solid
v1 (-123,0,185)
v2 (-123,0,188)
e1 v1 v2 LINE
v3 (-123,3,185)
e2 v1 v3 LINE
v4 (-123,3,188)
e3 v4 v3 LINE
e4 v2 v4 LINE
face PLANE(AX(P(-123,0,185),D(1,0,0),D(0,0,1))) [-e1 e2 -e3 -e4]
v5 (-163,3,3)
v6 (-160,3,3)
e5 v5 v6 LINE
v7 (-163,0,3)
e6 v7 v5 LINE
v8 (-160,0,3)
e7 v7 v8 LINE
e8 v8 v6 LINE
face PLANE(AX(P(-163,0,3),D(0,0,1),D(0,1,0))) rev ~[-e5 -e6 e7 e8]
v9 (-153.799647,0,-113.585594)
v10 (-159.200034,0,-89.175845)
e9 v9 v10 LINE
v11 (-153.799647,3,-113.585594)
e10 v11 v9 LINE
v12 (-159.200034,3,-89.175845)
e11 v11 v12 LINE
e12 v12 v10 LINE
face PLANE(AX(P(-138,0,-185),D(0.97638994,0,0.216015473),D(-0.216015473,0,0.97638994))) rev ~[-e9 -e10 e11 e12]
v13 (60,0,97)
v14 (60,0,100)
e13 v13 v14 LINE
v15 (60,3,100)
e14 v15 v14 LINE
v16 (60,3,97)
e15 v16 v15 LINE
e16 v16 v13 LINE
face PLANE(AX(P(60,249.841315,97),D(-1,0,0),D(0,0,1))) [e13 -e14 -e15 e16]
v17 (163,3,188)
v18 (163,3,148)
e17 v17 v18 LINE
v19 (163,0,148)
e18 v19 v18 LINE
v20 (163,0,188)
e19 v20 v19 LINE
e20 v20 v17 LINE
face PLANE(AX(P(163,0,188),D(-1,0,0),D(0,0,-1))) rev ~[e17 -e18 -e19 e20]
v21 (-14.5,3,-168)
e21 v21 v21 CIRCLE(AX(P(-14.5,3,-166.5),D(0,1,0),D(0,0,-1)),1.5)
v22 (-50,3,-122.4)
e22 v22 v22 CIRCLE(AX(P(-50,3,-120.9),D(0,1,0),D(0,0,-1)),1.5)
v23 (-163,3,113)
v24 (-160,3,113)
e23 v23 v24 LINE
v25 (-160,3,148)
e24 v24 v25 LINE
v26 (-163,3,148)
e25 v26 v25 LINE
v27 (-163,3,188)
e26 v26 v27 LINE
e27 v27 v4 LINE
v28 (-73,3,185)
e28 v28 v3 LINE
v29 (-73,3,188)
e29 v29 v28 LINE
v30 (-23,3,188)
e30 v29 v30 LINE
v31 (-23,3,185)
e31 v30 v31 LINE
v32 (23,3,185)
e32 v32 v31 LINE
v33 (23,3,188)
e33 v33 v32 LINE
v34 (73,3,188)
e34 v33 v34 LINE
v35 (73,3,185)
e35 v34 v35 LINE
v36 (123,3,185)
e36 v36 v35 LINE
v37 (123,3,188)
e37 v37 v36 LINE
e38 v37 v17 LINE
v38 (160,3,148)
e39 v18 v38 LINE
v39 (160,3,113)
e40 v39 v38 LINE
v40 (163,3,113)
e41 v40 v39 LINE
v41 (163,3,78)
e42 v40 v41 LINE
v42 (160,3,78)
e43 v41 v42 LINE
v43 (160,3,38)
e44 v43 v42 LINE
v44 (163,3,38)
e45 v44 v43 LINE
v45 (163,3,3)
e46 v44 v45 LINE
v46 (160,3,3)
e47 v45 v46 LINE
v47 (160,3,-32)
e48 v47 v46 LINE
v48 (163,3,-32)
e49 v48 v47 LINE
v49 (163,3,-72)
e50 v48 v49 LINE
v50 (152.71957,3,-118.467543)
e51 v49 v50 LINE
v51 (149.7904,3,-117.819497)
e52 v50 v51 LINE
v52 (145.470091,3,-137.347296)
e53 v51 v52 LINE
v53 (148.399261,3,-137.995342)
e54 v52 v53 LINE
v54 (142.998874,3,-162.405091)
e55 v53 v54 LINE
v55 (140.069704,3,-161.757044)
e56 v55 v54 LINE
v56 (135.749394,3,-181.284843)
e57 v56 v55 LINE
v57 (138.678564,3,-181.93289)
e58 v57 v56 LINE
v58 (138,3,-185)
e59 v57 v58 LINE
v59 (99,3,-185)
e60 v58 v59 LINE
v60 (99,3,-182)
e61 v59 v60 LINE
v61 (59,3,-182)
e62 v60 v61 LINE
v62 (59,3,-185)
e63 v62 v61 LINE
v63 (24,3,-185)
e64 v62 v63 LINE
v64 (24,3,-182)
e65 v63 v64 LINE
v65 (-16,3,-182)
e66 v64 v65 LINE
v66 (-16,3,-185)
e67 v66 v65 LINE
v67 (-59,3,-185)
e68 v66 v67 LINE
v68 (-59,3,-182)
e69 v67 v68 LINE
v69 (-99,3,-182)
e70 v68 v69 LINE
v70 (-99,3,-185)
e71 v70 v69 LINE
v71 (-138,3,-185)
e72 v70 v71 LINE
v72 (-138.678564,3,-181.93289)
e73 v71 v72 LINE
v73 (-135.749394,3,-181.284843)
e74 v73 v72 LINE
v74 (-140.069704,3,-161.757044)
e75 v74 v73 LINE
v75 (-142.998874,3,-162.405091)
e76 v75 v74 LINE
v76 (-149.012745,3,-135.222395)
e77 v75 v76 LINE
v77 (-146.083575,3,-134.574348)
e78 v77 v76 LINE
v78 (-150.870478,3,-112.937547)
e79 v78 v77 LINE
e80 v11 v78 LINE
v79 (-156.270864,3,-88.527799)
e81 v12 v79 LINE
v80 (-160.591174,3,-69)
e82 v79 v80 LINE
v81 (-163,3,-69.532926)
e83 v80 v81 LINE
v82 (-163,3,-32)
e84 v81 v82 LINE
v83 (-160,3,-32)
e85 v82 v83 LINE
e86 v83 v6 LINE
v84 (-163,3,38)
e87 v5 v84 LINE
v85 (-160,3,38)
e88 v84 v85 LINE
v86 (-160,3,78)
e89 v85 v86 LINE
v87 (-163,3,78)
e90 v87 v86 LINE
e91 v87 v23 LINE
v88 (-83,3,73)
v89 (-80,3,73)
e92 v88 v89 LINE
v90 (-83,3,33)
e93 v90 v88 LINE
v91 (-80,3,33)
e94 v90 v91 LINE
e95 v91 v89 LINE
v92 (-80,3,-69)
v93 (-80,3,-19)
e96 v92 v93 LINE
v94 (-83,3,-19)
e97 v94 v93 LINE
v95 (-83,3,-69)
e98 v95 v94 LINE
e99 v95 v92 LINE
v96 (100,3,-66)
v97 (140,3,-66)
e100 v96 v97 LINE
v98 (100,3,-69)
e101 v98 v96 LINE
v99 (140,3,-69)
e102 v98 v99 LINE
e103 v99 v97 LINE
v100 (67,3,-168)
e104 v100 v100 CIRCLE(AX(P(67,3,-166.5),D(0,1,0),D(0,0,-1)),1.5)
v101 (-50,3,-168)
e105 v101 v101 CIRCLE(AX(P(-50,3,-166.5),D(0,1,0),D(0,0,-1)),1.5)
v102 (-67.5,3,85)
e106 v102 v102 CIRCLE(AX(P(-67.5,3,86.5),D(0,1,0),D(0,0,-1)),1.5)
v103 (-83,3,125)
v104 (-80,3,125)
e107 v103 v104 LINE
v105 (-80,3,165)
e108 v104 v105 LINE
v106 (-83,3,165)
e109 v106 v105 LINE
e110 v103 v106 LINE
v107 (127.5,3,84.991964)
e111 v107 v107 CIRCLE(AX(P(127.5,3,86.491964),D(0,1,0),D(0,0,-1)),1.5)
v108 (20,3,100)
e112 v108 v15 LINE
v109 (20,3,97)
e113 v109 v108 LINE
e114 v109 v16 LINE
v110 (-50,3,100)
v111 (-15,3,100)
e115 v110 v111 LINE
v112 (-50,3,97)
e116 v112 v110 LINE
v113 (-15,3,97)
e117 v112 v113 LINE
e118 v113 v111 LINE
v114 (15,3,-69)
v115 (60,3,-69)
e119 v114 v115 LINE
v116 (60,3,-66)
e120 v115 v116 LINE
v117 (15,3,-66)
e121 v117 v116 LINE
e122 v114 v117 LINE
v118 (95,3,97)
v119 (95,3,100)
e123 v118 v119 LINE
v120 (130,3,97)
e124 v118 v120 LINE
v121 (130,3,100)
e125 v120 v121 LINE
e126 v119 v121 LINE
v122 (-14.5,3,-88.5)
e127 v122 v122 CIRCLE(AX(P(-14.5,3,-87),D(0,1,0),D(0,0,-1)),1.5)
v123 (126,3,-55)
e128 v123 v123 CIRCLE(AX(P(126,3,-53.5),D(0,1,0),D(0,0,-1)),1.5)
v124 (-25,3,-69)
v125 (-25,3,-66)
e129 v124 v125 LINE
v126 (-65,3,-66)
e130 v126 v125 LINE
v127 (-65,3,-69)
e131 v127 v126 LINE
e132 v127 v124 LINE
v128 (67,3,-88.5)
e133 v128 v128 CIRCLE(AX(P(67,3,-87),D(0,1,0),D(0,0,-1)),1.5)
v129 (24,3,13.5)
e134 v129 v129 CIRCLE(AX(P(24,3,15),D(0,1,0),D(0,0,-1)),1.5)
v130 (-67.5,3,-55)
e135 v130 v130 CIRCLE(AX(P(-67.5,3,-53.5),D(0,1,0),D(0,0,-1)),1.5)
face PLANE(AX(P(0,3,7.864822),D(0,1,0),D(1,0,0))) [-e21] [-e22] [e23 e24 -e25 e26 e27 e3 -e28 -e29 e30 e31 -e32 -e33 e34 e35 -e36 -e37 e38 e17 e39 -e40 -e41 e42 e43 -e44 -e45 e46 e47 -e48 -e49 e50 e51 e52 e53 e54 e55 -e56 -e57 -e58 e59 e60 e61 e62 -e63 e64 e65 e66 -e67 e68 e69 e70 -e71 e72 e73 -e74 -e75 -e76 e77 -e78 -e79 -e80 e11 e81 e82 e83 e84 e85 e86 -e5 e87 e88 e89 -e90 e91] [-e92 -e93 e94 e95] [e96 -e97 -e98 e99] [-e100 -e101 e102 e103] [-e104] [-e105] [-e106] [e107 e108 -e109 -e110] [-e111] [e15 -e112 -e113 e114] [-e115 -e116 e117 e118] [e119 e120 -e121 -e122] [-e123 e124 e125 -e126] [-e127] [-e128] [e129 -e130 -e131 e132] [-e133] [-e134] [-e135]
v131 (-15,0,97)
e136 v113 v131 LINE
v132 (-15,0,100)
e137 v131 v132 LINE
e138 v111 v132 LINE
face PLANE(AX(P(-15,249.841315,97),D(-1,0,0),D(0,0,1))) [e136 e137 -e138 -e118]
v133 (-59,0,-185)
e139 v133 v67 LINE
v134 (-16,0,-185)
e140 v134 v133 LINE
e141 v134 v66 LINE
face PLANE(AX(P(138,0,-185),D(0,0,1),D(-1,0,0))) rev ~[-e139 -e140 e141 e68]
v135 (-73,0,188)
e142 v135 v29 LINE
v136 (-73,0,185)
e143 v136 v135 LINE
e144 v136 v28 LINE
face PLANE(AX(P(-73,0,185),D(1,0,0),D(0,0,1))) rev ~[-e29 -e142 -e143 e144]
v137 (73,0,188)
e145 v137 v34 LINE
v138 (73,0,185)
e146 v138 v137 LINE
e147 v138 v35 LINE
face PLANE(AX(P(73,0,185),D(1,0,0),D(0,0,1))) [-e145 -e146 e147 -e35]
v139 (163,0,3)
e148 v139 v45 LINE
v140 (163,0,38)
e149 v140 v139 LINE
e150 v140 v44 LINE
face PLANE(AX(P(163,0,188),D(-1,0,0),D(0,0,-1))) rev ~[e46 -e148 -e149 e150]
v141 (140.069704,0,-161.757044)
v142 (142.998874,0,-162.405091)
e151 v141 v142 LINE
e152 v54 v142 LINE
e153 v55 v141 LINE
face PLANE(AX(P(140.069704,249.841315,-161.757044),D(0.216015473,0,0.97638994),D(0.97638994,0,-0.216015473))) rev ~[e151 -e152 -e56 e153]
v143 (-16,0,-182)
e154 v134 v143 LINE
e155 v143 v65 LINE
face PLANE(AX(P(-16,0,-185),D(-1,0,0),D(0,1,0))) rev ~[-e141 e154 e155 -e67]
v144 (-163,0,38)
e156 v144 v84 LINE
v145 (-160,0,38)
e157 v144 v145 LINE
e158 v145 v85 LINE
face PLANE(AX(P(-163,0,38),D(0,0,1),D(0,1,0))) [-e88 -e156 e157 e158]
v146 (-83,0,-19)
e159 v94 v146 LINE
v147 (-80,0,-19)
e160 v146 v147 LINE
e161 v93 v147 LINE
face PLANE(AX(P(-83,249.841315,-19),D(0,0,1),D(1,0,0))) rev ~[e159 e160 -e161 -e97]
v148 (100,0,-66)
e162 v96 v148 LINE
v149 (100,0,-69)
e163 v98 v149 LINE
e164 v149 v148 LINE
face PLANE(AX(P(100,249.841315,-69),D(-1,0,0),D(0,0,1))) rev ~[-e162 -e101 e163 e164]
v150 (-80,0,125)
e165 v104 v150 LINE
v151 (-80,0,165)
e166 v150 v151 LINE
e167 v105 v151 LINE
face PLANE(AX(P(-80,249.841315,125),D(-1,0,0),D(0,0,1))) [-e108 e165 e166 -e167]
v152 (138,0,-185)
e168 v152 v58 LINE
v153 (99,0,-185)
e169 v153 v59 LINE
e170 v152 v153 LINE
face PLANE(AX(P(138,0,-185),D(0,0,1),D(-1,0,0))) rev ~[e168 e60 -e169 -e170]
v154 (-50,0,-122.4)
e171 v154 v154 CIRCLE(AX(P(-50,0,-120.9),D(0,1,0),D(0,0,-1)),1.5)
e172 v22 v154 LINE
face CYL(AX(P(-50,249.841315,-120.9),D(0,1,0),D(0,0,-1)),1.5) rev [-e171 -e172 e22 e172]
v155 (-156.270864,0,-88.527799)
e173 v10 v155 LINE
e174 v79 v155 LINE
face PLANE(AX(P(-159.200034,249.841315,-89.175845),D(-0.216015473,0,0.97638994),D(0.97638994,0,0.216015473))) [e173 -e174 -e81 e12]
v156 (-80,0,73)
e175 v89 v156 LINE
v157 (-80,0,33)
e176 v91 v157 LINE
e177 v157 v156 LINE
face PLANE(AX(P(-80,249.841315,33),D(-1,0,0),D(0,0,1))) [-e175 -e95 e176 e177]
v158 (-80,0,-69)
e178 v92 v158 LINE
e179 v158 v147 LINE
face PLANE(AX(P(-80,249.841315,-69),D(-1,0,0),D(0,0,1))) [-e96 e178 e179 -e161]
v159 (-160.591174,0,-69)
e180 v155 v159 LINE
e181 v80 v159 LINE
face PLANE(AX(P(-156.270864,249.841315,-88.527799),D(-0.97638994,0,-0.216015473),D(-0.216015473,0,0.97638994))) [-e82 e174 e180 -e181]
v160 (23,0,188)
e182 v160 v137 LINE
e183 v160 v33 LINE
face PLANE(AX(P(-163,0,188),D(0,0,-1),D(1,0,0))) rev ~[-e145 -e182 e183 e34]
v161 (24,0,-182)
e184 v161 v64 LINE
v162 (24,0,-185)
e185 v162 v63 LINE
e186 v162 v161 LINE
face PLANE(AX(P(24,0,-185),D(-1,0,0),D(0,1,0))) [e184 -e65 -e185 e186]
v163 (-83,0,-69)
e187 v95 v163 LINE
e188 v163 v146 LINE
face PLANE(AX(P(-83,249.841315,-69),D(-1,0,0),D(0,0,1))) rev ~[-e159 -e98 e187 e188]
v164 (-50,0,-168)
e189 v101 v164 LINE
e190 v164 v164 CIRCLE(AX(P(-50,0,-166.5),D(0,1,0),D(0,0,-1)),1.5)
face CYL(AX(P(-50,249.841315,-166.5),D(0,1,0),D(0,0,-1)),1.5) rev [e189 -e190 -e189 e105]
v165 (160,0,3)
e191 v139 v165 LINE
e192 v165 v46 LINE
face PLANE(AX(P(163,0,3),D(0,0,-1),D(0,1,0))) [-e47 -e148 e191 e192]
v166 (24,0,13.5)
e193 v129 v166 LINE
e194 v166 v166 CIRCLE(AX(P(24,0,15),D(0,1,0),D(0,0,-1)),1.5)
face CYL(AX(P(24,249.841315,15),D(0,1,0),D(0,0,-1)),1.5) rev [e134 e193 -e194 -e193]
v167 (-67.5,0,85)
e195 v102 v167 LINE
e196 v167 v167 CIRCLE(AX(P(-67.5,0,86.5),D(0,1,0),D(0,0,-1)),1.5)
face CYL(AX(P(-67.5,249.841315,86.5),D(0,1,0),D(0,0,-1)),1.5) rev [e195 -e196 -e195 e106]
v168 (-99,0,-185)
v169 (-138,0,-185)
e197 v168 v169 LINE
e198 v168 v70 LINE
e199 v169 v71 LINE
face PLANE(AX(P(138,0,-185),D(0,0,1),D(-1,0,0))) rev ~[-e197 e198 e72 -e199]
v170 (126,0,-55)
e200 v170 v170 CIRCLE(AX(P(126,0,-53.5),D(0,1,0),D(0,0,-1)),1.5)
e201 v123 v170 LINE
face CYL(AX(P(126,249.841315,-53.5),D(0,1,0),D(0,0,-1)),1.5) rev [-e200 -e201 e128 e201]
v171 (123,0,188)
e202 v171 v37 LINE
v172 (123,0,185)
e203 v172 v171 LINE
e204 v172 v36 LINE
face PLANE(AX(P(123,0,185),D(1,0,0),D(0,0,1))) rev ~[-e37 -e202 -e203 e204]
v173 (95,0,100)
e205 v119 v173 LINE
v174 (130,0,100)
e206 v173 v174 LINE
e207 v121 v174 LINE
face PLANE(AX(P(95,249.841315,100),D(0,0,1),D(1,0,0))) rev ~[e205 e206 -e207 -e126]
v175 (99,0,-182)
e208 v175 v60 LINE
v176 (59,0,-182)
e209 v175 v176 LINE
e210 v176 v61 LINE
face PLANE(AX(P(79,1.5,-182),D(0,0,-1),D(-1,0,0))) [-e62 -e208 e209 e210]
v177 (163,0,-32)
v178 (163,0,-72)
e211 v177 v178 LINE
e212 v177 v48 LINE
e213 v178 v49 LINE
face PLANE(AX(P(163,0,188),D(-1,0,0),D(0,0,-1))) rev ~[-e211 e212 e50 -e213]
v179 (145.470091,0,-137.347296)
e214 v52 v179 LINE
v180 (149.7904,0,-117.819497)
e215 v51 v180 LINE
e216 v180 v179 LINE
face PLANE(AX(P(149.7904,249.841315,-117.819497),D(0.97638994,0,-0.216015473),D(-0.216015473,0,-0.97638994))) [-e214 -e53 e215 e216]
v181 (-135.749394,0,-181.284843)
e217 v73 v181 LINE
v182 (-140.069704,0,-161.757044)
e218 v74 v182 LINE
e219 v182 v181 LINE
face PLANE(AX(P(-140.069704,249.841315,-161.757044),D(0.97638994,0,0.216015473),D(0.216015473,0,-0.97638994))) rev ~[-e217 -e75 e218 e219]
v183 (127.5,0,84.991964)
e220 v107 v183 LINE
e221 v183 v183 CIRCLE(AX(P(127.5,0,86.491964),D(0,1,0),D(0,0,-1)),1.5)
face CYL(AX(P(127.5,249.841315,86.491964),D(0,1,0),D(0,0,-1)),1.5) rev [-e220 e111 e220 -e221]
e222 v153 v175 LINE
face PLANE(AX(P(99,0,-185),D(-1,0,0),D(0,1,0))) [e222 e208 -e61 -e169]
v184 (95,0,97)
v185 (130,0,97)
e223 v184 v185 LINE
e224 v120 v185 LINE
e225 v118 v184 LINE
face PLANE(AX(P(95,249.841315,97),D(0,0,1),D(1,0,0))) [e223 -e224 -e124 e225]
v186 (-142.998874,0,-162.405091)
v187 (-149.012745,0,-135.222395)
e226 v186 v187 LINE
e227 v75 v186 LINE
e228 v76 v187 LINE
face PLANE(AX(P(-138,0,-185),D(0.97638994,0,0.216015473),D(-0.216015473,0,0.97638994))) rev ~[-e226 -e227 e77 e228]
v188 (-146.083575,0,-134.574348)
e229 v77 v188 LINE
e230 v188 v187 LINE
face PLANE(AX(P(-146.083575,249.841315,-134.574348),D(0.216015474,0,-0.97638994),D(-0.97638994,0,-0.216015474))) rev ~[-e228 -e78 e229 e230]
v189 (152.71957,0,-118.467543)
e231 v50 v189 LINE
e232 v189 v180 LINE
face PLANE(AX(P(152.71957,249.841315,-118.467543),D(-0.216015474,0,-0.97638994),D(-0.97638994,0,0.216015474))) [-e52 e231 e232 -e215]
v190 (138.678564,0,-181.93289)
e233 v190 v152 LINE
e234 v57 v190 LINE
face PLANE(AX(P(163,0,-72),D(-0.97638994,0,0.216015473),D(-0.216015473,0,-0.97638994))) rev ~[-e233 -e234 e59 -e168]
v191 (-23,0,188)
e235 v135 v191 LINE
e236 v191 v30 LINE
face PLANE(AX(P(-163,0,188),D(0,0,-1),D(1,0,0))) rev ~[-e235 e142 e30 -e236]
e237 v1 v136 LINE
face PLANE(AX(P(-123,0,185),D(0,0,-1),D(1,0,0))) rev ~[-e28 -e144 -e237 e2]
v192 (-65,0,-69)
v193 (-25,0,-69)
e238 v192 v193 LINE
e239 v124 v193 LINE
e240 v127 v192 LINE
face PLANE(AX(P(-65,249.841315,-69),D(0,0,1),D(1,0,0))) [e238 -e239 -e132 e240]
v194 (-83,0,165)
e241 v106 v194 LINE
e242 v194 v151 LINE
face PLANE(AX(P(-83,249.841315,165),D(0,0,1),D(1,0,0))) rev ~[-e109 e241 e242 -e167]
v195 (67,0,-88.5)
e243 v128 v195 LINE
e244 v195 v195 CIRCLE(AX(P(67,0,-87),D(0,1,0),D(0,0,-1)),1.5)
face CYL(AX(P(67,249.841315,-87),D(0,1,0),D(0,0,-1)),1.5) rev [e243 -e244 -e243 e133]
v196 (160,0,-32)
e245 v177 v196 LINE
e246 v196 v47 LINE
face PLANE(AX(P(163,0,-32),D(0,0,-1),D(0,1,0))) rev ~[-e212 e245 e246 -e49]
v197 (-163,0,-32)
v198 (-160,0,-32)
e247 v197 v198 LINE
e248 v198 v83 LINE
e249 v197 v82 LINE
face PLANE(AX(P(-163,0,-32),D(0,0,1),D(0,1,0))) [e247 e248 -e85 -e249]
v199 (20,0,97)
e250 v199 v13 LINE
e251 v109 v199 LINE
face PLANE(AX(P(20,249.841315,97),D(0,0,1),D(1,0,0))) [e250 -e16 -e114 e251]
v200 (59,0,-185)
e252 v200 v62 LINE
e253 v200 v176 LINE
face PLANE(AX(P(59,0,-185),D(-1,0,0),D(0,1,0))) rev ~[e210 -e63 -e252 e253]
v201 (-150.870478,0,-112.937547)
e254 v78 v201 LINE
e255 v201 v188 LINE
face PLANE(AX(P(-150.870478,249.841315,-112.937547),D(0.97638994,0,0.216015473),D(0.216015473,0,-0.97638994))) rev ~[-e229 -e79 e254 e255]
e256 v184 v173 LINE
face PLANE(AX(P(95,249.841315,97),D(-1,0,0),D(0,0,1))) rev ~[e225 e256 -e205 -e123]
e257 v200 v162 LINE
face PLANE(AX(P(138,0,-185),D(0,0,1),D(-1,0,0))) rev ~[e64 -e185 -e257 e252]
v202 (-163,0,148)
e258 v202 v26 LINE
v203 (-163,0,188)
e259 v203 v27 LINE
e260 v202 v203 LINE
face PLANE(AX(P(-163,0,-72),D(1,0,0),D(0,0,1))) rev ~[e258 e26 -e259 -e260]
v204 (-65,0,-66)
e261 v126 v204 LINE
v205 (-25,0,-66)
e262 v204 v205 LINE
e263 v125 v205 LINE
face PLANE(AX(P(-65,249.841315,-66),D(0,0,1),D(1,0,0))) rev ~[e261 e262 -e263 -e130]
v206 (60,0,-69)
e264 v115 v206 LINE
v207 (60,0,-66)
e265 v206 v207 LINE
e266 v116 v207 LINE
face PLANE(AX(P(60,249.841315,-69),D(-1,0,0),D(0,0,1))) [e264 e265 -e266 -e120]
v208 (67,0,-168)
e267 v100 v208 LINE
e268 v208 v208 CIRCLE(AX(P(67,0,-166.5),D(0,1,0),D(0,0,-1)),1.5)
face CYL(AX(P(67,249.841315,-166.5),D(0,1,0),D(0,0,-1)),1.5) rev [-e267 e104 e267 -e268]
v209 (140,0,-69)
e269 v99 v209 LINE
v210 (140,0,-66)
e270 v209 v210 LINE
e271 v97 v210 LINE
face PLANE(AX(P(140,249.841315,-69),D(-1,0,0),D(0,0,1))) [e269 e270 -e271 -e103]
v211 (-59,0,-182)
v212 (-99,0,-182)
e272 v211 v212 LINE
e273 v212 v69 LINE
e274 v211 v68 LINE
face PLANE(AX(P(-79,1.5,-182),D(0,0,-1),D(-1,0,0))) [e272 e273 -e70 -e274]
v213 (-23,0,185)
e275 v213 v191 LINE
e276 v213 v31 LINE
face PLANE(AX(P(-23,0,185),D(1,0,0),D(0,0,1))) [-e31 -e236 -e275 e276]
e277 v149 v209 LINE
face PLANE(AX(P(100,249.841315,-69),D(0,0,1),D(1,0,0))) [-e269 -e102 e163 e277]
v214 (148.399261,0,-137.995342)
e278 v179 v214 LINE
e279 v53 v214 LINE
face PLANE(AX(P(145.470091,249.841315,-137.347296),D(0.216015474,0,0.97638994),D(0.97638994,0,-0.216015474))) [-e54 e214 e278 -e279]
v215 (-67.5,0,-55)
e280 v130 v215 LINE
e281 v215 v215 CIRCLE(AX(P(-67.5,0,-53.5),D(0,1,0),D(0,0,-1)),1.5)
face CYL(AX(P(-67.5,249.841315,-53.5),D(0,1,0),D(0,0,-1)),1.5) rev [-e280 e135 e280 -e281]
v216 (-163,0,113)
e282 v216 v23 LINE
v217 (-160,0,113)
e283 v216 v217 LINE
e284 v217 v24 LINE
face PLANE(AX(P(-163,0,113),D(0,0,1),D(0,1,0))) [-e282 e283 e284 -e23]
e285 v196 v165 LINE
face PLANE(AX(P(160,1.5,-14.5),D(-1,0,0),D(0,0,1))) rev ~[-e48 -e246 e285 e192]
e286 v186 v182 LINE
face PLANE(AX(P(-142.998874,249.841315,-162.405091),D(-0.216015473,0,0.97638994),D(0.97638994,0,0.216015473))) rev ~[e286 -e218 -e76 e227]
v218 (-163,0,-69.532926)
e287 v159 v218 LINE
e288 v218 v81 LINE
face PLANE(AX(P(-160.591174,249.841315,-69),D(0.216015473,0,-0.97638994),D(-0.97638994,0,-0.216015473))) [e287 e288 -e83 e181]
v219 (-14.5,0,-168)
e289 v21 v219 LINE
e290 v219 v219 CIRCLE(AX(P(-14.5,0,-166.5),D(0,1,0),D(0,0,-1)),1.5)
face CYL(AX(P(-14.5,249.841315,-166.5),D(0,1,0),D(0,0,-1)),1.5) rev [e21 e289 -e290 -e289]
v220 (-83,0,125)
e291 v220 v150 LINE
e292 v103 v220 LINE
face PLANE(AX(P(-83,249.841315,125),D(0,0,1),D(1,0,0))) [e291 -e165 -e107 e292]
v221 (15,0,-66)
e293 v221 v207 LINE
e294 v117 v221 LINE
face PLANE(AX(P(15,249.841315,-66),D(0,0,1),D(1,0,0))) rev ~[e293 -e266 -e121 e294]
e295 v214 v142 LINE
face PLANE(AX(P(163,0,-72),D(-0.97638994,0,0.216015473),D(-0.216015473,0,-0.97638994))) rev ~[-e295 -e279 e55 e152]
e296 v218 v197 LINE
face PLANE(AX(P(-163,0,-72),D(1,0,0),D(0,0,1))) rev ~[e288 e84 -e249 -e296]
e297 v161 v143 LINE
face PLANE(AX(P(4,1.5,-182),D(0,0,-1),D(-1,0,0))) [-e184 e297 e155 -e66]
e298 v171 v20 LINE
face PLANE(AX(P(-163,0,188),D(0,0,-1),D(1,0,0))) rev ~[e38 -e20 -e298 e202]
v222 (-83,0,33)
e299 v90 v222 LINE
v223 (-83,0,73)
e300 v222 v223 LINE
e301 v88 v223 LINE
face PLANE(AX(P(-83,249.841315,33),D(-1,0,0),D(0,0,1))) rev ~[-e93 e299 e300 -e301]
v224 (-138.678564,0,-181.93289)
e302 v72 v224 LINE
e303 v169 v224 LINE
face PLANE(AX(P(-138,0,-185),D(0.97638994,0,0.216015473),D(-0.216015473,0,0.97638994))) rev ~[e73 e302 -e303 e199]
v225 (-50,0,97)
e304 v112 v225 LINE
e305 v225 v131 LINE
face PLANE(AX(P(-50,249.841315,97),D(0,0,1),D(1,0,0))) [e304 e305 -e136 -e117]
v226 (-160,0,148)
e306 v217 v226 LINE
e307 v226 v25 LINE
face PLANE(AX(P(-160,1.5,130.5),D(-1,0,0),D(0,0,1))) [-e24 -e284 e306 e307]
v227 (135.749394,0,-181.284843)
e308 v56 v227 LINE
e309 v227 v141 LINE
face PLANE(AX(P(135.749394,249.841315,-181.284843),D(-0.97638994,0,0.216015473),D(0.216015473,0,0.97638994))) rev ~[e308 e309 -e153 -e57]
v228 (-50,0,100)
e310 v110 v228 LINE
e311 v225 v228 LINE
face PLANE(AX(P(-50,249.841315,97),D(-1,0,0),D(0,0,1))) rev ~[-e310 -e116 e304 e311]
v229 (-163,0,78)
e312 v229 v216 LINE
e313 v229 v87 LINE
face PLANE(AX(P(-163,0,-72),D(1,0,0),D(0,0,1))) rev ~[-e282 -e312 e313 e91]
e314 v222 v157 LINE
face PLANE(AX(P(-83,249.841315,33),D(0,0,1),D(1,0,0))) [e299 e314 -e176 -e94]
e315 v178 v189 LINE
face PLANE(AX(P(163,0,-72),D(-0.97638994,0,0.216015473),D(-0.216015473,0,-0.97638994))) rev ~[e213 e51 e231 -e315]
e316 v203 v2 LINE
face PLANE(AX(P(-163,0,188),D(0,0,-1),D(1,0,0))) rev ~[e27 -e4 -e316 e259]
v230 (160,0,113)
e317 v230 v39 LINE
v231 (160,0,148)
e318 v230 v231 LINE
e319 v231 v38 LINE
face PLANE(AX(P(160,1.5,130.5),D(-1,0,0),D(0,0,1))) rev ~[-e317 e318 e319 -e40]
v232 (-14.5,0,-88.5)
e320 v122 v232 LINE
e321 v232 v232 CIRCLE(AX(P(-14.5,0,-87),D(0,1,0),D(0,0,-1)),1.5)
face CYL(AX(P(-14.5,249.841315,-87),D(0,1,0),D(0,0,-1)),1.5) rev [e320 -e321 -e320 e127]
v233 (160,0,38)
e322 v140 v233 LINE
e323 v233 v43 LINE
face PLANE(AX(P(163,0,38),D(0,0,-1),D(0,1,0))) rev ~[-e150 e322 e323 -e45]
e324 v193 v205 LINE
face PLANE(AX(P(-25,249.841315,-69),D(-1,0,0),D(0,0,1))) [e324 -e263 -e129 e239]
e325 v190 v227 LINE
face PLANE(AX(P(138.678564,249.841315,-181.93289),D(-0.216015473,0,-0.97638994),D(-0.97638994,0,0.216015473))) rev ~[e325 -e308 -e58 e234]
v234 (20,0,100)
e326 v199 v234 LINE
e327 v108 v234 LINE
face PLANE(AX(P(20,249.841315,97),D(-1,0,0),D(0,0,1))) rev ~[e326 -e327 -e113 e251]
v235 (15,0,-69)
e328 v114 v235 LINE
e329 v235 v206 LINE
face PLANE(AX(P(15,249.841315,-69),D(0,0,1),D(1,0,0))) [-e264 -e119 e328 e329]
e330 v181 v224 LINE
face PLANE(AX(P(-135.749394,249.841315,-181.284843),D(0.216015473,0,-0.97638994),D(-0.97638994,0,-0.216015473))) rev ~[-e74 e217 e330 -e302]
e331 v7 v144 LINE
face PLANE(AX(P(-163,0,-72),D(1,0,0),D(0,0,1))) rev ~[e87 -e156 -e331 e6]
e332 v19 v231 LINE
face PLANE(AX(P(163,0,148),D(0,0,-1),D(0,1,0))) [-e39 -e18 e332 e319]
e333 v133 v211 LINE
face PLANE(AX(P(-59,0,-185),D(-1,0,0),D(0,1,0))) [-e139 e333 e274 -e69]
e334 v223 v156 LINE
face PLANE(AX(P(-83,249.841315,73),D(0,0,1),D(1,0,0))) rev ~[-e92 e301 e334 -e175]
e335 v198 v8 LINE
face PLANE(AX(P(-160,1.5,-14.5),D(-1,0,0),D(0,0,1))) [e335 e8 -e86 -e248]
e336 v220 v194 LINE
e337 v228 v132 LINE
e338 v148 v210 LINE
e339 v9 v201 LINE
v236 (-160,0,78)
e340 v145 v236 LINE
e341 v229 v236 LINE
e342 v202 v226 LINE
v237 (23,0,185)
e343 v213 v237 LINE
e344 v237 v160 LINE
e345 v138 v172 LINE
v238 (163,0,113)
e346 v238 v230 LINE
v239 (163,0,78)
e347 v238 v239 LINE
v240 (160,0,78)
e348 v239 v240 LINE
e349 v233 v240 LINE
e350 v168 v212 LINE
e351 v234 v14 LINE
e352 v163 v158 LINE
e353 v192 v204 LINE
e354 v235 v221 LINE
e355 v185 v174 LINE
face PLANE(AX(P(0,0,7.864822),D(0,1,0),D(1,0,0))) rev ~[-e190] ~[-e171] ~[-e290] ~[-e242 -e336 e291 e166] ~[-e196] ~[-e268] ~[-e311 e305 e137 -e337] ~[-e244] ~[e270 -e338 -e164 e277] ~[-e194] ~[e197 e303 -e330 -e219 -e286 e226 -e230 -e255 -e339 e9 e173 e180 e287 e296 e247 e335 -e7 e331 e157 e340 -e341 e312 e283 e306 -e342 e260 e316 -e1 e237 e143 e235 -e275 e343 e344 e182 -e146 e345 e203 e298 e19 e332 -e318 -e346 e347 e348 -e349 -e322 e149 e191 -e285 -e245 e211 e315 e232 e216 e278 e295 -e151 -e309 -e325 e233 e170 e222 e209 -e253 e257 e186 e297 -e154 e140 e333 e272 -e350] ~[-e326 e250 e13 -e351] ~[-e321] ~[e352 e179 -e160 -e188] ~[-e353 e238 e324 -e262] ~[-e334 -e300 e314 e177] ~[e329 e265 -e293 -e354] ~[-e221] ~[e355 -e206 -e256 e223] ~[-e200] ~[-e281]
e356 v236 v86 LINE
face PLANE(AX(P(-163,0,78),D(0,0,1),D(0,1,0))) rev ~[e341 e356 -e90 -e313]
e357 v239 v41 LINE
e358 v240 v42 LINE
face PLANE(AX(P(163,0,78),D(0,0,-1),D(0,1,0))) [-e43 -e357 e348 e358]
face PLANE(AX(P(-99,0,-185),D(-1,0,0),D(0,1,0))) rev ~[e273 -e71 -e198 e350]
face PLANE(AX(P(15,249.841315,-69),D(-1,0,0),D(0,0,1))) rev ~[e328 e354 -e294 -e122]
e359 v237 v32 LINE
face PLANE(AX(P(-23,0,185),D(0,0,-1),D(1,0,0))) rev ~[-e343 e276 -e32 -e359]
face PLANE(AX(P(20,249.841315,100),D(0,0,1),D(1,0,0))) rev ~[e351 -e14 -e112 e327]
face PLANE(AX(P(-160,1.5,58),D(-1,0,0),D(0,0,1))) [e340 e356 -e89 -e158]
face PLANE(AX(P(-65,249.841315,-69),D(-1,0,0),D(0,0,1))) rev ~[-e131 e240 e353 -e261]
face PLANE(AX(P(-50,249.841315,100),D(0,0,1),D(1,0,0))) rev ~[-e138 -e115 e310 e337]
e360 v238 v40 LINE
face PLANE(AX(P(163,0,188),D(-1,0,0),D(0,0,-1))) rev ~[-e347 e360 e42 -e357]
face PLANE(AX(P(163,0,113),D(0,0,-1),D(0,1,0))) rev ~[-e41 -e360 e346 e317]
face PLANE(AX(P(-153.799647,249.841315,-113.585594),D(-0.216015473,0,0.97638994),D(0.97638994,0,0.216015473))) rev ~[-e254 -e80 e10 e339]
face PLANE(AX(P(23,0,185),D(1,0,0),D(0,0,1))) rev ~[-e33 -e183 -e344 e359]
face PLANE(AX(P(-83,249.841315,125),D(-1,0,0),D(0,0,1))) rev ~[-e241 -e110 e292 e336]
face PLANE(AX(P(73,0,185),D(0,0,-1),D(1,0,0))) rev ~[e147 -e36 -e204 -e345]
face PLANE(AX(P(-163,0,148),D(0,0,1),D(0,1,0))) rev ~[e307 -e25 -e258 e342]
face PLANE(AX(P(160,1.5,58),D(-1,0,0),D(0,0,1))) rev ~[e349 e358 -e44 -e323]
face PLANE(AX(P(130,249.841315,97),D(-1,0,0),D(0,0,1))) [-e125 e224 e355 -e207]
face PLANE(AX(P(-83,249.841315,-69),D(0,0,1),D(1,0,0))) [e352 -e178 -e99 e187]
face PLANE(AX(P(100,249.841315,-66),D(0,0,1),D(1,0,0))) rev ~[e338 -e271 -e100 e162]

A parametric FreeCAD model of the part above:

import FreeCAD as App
import Part
import Sketcher
from FreeCAD import Vector
Q = App.Units.Quantity


def add_polygon(sketch, points):
    """Adds a closed chain of lines whose ends are joined by coincident constraints."""
    first, n = sketch.GeometryCount, len(points)
    for a, b in zip(points, points[1:] + points[:1]):
        sketch.addGeometry(Part.LineSegment(App.Vector(*a, 0), App.Vector(*b, 0)), False)
    for i in range(n):
        sketch.addConstraint(Sketcher.Constraint("Coincident", first + i, 2, first + (i + 1) % n, 1))

doc = App.newDocument("Part")
body = doc.addObject("PartDesign::Body", "Body")

# Sketch on XZ plane
sketch1 = body.newObject("Sketcher::SketchObject", "Sketch")
sketch1.AttachmentSupport = (doc.getObject("XZ_Plane"), [""])
sketch1.MapMode = "FlatFace"
add_polygon(sketch1, [(138, -185), (-138, -185), (-163, -72), (-163, 188), (163, 188), (163, -72)])  # lines 0-5
sketch1.addConstraint(Sketcher.Constraint("Horizontal", 0))
sketch1.addConstraint(Sketcher.Constraint("Vertical", 2))
sketch1.addConstraint(Sketcher.Constraint("Horizontal", 3))
sketch1.addConstraint(Sketcher.Constraint("Vertical", 4))
sketch1.addConstraint(Sketcher.Constraint("Symmetric", 1, 2, 4, 2, -2))
sketch1.addConstraint(Sketcher.Constraint("Equal", 1, 5))
sketch1.addConstraint(Sketcher.Constraint("DistanceX", 0, 2, 0, 1, Q("276 mm")))
sketch1.addConstraint(Sketcher.Constraint("DistanceX", 3, 1, 3, 2, Q("326 mm")))
sketch1.addConstraint(Sketcher.Constraint("DistanceY", 2, 1, 2, 2, Q("260 mm")))
sketch1.addConstraint(Sketcher.Constraint("DistanceY", 0, 2, -1, 1, Q("185 mm")))
sketch1.addConstraint(Sketcher.Constraint("DistanceY", 1, 2, -1, 1, Q("72 mm")))
pad1 = body.newObject("PartDesign::Pad", "Pad")
pad1.Profile = sketch1
pad1.Length = 3
pad1.Reversed = True

# Sketch on XZ plane
sketch2 = body.newObject("Sketcher::SketchObject", "Sketch001")
sketch2.AttachmentSupport = (doc.getObject("XZ_Plane"), [""])
sketch2.MapMode = "FlatFace"
add_polygon(sketch2, [(73, 188), (73, 185), (123, 185), (123, 188)])  # lines 0-3
add_polygon(sketch2, [(-23, 188), (-23, 185), (23, 185), (23, 188)])  # lines 4-7
add_polygon(sketch2, [(-123, 188), (-123, 185), (-73, 185), (-73, 188)])  # lines 8-11
sketch2.addConstraint(Sketcher.Constraint("Vertical", 0))
sketch2.addConstraint(Sketcher.Constraint("Horizontal", 1))
sketch2.addConstraint(Sketcher.Constraint("Vertical", 2))
sketch2.addConstraint(Sketcher.Constraint("Horizontal", 3))
sketch2.addConstraint(Sketcher.Constraint("Vertical", 4))
sketch2.addConstraint(Sketcher.Constraint("Horizontal", 5))
sketch2.addConstraint(Sketcher.Constraint("Vertical", 6))
sketch2.addConstraint(Sketcher.Constraint("Horizontal", 7))
sketch2.addConstraint(Sketcher.Constraint("Vertical", 8))
sketch2.addConstraint(Sketcher.Constraint("Horizontal", 9))
sketch2.addConstraint(Sketcher.Constraint("Vertical", 10))
sketch2.addConstraint(Sketcher.Constraint("Horizontal", 11))
sketch2.addConstraint(Sketcher.Constraint("Symmetric", 1, 2, 8, 2, -2))
sketch2.addConstraint(Sketcher.Constraint("Symmetric", 3, 2, 10, 2, -2))
sketch2.addConstraint(Sketcher.Constraint("Horizontal", 1, 2, 4, 2))
sketch2.addConstraint(Sketcher.Constraint("Horizontal", 3, 2, 6, 2))
sketch2.addConstraint(Sketcher.Constraint("DistanceX", 1, 1, 1, 2, Q("50 mm")))
sketch2.addConstraint(Sketcher.Constraint("DistanceX", 5, 1, 5, 2, Q("46 mm")))
sketch2.addConstraint(Sketcher.Constraint("DistanceY", 0, 2, 0, 1, Q("3 mm")))
sketch2.addConstraint(Sketcher.Constraint("DistanceX", -1, 1, 0, 2, Q("73 mm")))
sketch2.addConstraint(Sketcher.Constraint("DistanceY", -1, 1, 0, 2, Q("185 mm")))
sketch2.addConstraint(Sketcher.Constraint("DistanceX", 4, 2, -1, 1, Q("23 mm")))
pocket1 = body.newObject("PartDesign::Pocket", "Pocket")
pocket1.Profile = sketch2
pocket1.Length = 4

# Sketch on YZ plane
sketch3 = body.newObject("Sketcher::SketchObject", "Sketch002")
sketch3.AttachmentSupport = (doc.getObject("YZ_Plane"), [""])
sketch3.MapMode = "FlatFace"
sketch3.AttachmentOffset = App.Placement(Vector(0, 0, -163), App.Rotation())
add_polygon(sketch3, [(3, 113), (0, 113), (0, 148), (3, 148)])  # lines 0-3
add_polygon(sketch3, [(3, -32), (0, -32), (0, 3), (3, 3)])  # lines 4-7
add_polygon(sketch3, [(3, 38), (0, 38), (0, 78), (3, 78)])  # lines 8-11
sketch3.addConstraint(Sketcher.Constraint("Horizontal", 0))
sketch3.addConstraint(Sketcher.Constraint("Vertical", 1))
sketch3.addConstraint(Sketcher.Constraint("Horizontal", 2))
sketch3.addConstraint(Sketcher.Constraint("Vertical", 3))
sketch3.addConstraint(Sketcher.Constraint("Horizontal", 4))
sketch3.addConstraint(Sketcher.Constraint("Vertical", 5))
sketch3.addConstraint(Sketcher.Constraint("Horizontal", 6))
sketch3.addConstraint(Sketcher.Constraint("Vertical", 7))
sketch3.addConstraint(Sketcher.Constraint("Horizontal", 8))
sketch3.addConstraint(Sketcher.Constraint("Vertical", 9))
sketch3.addConstraint(Sketcher.Constraint("Horizontal", 10))
sketch3.addConstraint(Sketcher.Constraint("Vertical", 11))
sketch3.addConstraint(Sketcher.Constraint("PointOnObject", 0, 2, -2))
sketch3.addConstraint(Sketcher.Constraint("PointOnObject", 4, 2, -2))
sketch3.addConstraint(Sketcher.Constraint("PointOnObject", 8, 2, -2))
sketch3.addConstraint(Sketcher.Constraint("Vertical", 3, 2, 6, 2))
sketch3.addConstraint(Sketcher.Constraint("Vertical", 7, 2, 10, 2))
sketch3.addConstraint(Sketcher.Constraint("Equal", 3, 5))
sketch3.addConstraint(Sketcher.Constraint("DistanceX", 0, 2, 0, 1, Q("3 mm")))
sketch3.addConstraint(Sketcher.Constraint("DistanceY", 1, 1, 1, 2, Q("35 mm")))
sketch3.addConstraint(Sketcher.Constraint("DistanceY", 9, 1, 9, 2, Q("40 mm")))
sketch3.addConstraint(Sketcher.Constraint("DistanceY", -1, 1, 0, 2, Q("113 mm")))
sketch3.addConstraint(Sketcher.Constraint("DistanceY", 4, 2, -1, 1, Q("32 mm")))
sketch3.addConstraint(Sketcher.Constraint("DistanceY", -1, 1, 8, 2, Q("38 mm")))
pocket2 = body.newObject("PartDesign::Pocket", "Pocket001")
pocket2.Profile = sketch3
pocket2.Length = 3
pocket2.Reversed = True

# Sketch on YZ plane
sketch4 = body.newObject("Sketcher::SketchObject", "Sketch003")
sketch4.AttachmentSupport = (doc.getObject("YZ_Plane"), [""])
sketch4.MapMode = "FlatFace"
sketch4.AttachmentOffset = App.Placement(Vector(0, 0, 163), App.Rotation())
add_polygon(sketch4, [(3, 113), (0, 113), (0, 148), (3, 148)])  # lines 0-3
add_polygon(sketch4, [(3, -32), (0, -32), (0, 3), (3, 3)])  # lines 4-7
add_polygon(sketch4, [(3, 38), (0, 38), (0, 78), (3, 78)])  # lines 8-11
sketch4.addConstraint(Sketcher.Constraint("Horizontal", 0))
sketch4.addConstraint(Sketcher.Constraint("Vertical", 1))
sketch4.addConstraint(Sketcher.Constraint("Horizontal", 2))
sketch4.addConstraint(Sketcher.Constraint("Vertical", 3))
sketch4.addConstraint(Sketcher.Constraint("Horizontal", 4))
sketch4.addConstraint(Sketcher.Constraint("Vertical", 5))
sketch4.addConstraint(Sketcher.Constraint("Horizontal", 6))
sketch4.addConstraint(Sketcher.Constraint("Vertical", 7))
sketch4.addConstraint(Sketcher.Constraint("Horizontal", 8))
sketch4.addConstraint(Sketcher.Constraint("Vertical", 9))
sketch4.addConstraint(Sketcher.Constraint("Horizontal", 10))
sketch4.addConstraint(Sketcher.Constraint("Vertical", 11))
sketch4.addConstraint(Sketcher.Constraint("PointOnObject", 0, 2, -2))
sketch4.addConstraint(Sketcher.Constraint("PointOnObject", 4, 2, -2))
sketch4.addConstraint(Sketcher.Constraint("PointOnObject", 8, 2, -2))
sketch4.addConstraint(Sketcher.Constraint("Vertical", 3, 2, 6, 2))
sketch4.addConstraint(Sketcher.Constraint("Vertical", 7, 2, 10, 2))
sketch4.addConstraint(Sketcher.Constraint("Equal", 3, 5))
sketch4.addConstraint(Sketcher.Constraint("DistanceX", 0, 2, 0, 1, Q("3 mm")))
sketch4.addConstraint(Sketcher.Constraint("DistanceY", 1, 1, 1, 2, Q("35 mm")))
sketch4.addConstraint(Sketcher.Constraint("DistanceY", 9, 1, 9, 2, Q("40 mm")))
sketch4.addConstraint(Sketcher.Constraint("DistanceY", -1, 1, 0, 2, Q("113 mm")))
sketch4.addConstraint(Sketcher.Constraint("DistanceY", 4, 2, -1, 1, Q("32 mm")))
sketch4.addConstraint(Sketcher.Constraint("DistanceY", -1, 1, 8, 2, Q("38 mm")))
pocket3 = body.newObject("PartDesign::Pocket", "Pocket002")
pocket3.Profile = sketch4
pocket3.Length = 3

# Sketch on XY plane
sketch5 = body.newObject("Sketcher::SketchObject", "Sketch004")
sketch5.AttachmentSupport = (doc.getObject("XY_Plane"), [""])
sketch5.MapMode = "FlatFace"
sketch5.AttachmentOffset = App.Placement(Vector(0, 0, -185), App.Rotation())
add_polygon(sketch5, [(-59, 3), (-59, 0), (-99, 0), (-99, 3)])  # lines 0-3
add_polygon(sketch5, [(24, 3), (24, 0), (-16, 0), (-16, 3)])  # lines 4-7
add_polygon(sketch5, [(99, 3), (99, 0), (59, 0), (59, 3)])  # lines 8-11
sketch5.addConstraint(Sketcher.Constraint("Vertical", 0))
sketch5.addConstraint(Sketcher.Constraint("Horizontal", 1))
sketch5.addConstraint(Sketcher.Constraint("Vertical", 2))
sketch5.addConstraint(Sketcher.Constraint("Horizontal", 3))
sketch5.addConstraint(Sketcher.Constraint("Vertical", 4))
sketch5.addConstraint(Sketcher.Constraint("Horizontal", 5))
sketch5.addConstraint(Sketcher.Constraint("Vertical", 6))
sketch5.addConstraint(Sketcher.Constraint("Horizontal", 7))
sketch5.addConstraint(Sketcher.Constraint("Vertical", 8))
sketch5.addConstraint(Sketcher.Constraint("Horizontal", 9))
sketch5.addConstraint(Sketcher.Constraint("Vertical", 10))
sketch5.addConstraint(Sketcher.Constraint("Horizontal", 11))
sketch5.addConstraint(Sketcher.Constraint("Symmetric", 1, 2, 8, 2, -1, 1))
sketch5.addConstraint(Sketcher.Constraint("Symmetric", 0, 2, 9, 2, -2))
sketch5.addConstraint(Sketcher.Constraint("PointOnObject", 4, 2, -1))
sketch5.addConstraint(Sketcher.Constraint("Horizontal", 3, 2, 6, 2))
sketch5.addConstraint(Sketcher.Constraint("Horizontal", 7, 2, 10, 2))
sketch5.addConstraint(Sketcher.Constraint("Equal", 3, 5))
sketch5.addConstraint(Sketcher.Constraint("DistanceX", 1, 2, 1, 1, Q("40 mm")))
sketch5.addConstraint(Sketcher.Constraint("DistanceY", 0, 2, 0, 1, Q("3 mm")))
sketch5.addConstraint(Sketcher.Constraint("DistanceX", 0, 2, -1, 1, Q("59 mm")))
sketch5.addConstraint(Sketcher.Constraint("DistanceX", -1, 1, 4, 2, Q("24 mm")))
pocket4 = body.newObject("PartDesign::Pocket", "Pocket003")
pocket4.Profile = sketch5
pocket4.Length = 3
pocket4.Reversed = True

# Sketch on XZ plane
sketch6 = body.newObject("Sketcher::SketchObject", "Sketch005")
sketch6.AttachmentSupport = (doc.getObject("XZ_Plane"), [""])
sketch6.MapMode = "FlatFace"
add_polygon(sketch6, [(-83, 165), (-83, 125), (-80, 125), (-80, 165)])  # lines 0-3
add_polygon(sketch6, [(-83, 73), (-83, 33), (-80, 33), (-80, 73)])  # lines 4-7
add_polygon(sketch6, [(-83, -19), (-83, -69), (-80, -69), (-80, -19)])  # lines 8-11
sketch6.addConstraint(Sketcher.Constraint("Vertical", 0))
sketch6.addConstraint(Sketcher.Constraint("Horizontal", 1))
sketch6.addConstraint(Sketcher.Constraint("Vertical", 2))
sketch6.addConstraint(Sketcher.Constraint("Horizontal", 3))
sketch6.addConstraint(Sketcher.Constraint("Vertical", 4))
sketch6.addConstraint(Sketcher.Constraint("Horizontal", 5))
sketch6.addConstraint(Sketcher.Constraint("Vertical", 6))
sketch6.addConstraint(Sketcher.Constraint("Horizontal", 7))
sketch6.addConstraint(Sketcher.Constraint("Vertical", 8))
sketch6.addConstraint(Sketcher.Constraint("Horizontal", 9))
sketch6.addConstraint(Sketcher.Constraint("Vertical", 10))
sketch6.addConstraint(Sketcher.Constraint("Horizontal", 11))
sketch6.addConstraint(Sketcher.Constraint("Vertical", 3, 2, 4, 2))
sketch6.addConstraint(Sketcher.Constraint("Vertical", 2, 2, 5, 2))
sketch6.addConstraint(Sketcher.Constraint("Vertical", 7, 2, 8, 2))
sketch6.addConstraint(Sketcher.Constraint("Vertical", 6, 2, 9, 2))
sketch6.addConstraint(Sketcher.Constraint("Equal", 2, 4))
sketch6.addConstraint(Sketcher.Constraint("DistanceX", 1, 1, 1, 2, Q("3 mm")))
sketch6.addConstraint(Sketcher.Constraint("DistanceY", 0, 2, 0, 1, Q("40 mm")))
sketch6.addConstraint(Sketcher.Constraint("DistanceY", 8, 2, 8, 1, Q("50 mm")))
sketch6.addConstraint(Sketcher.Constraint("DistanceX", 0, 2, -1, 1, Q("83 mm")))
sketch6.addConstraint(Sketcher.Constraint("DistanceY", -1, 1, 0, 2, Q("125 mm")))
sketch6.addConstraint(Sketcher.Constraint("DistanceY", -1, 1, 4, 2, Q("33 mm")))
sketch6.addConstraint(Sketcher.Constraint("DistanceY", 8, 2, -1, 1, Q("69 mm")))
pocket5 = body.newObject("PartDesign::Pocket", "Pocket004")
pocket5.Profile = sketch6
pocket5.Type = "ThroughAll"
pocket5.Midplane = True

# Sketch on XZ plane
sketch7 = body.newObject("Sketcher::SketchObject", "Sketch006")
sketch7.AttachmentSupport = (doc.getObject("XZ_Plane"), [""])
sketch7.MapMode = "FlatFace"
add_polygon(sketch7, [(100, -66), (100, -69), (140, -69), (140, -66)])  # lines 0-3
add_polygon(sketch7, [(15, -66), (15, -69), (60, -69), (60, -66)])  # lines 4-7
add_polygon(sketch7, [(-65, -66), (-65, -69), (-25, -69), (-25, -66)])  # lines 8-11
sketch7.addConstraint(Sketcher.Constraint("Vertical", 0))
sketch7.addConstraint(Sketcher.Constraint("Horizontal", 1))
sketch7.addConstraint(Sketcher.Constraint("Vertical", 2))
sketch7.addConstraint(Sketcher.Constraint("Horizontal", 3))
sketch7.addConstraint(Sketcher.Constraint("Vertical", 4))
sketch7.addConstraint(Sketcher.Constraint("Horizontal", 5))
sketch7.addConstraint(Sketcher.Constraint("Vertical", 6))
sketch7.addConstraint(Sketcher.Constraint("Horizontal", 7))
sketch7.addConstraint(Sketcher.Constraint("Vertical", 8))
sketch7.addConstraint(Sketcher.Constraint("Horizontal", 9))
sketch7.addConstraint(Sketcher.Constraint("Vertical", 10))
sketch7.addConstraint(Sketcher.Constraint("Horizontal", 11))
sketch7.addConstraint(Sketcher.Constraint("Horizontal", 1, 2, 4, 2))
sketch7.addConstraint(Sketcher.Constraint("Horizontal", 3, 2, 6, 2))
sketch7.addConstraint(Sketcher.Constraint("Horizontal", 5, 2, 8, 2))
sketch7.addConstraint(Sketcher.Constraint("Horizontal", 7, 2, 10, 2))
sketch7.addConstraint(Sketcher.Constraint("Equal", 3, 9))
sketch7.addConstraint(Sketcher.Constraint("DistanceX", 1, 1, 1, 2, Q("40 mm")))
sketch7.addConstraint(Sketcher.Constraint("DistanceX", 5, 1, 5, 2, Q("45 mm")))
sketch7.addConstraint(Sketcher.Constraint("DistanceY", 0, 2, 0, 1, Q("3 mm")))
sketch7.addConstraint(Sketcher.Constraint("DistanceX", -1, 1, 0, 2, Q("100 mm")))
sketch7.addConstraint(Sketcher.Constraint("DistanceY", 0, 2, -1, 1, Q("69 mm")))
sketch7.addConstraint(Sketcher.Constraint("DistanceX", -1, 1, 4, 2, Q("15 mm")))
sketch7.addConstraint(Sketcher.Constraint("DistanceX", 8, 2, -1, 1, Q("65 mm")))
pocket6 = body.newObject("PartDesign::Pocket", "Pocket005")
pocket6.Profile = sketch7
pocket6.Type = "ThroughAll"
pocket6.Midplane = True

# Sketch on XZ plane
sketch8 = body.newObject("Sketcher::SketchObject", "Sketch007")
sketch8.AttachmentSupport = (doc.getObject("XZ_Plane"), [""])
sketch8.MapMode = "FlatFace"
add_polygon(sketch8, [(-138.678564, -181.93289), (-135.749394, -181.284843), (-140.069704, -161.757044), (-142.998874, -162.405091)])  # lines 0-3
add_polygon(sketch8, [(-149.012745, -135.222395), (-146.083575, -134.574348), (-150.870478, -112.937547), (-153.799647, -113.585594)])  # lines 4-7
add_polygon(sketch8, [(-156.270864, -88.527799), (-160.591174, -69), (-163.520344, -69.648046), (-159.200034, -89.175845)])  # lines 8-11
sketch8.addConstraint(Sketcher.Constraint("Perpendicular", 0, 1))
sketch8.addConstraint(Sketcher.Constraint("Perpendicular", 1, 2))
sketch8.addConstraint(Sketcher.Constraint("Perpendicular", 2, 3))
sketch8.addConstraint(Sketcher.Constraint("Perpendicular", 3, 4))
sketch8.addConstraint(Sketcher.Constraint("Perpendicular", 4, 5))
sketch8.addConstraint(Sketcher.Constraint("Perpendicular", 5, 6))
sketch8.addConstraint(Sketcher.Constraint("Perpendicular", 6, 7))
sketch8.addConstraint(Sketcher.Constraint("Parallel", 7, 8))
sketch8.addConstraint(Sketcher.Constraint("Perpendicular", 8, 9))
sketch8.addConstraint(Sketcher.Constraint("Perpendicular", 9, 10))
sketch8.addConstraint(Sketcher.Constraint("Perpendicular", 10, 11))
sketch8.addConstraint(Sketcher.Constraint("Equal", 2, 4))
sketch8.addConstraint(Sketcher.Constraint("Equal", 3, 8))
sketch8.addConstraint(Sketcher.Constraint("Equal", 6, 9))
sketch8.addConstraint(Sketcher.Constraint("Distance", 0, Q("3 mm")))
sketch8.addConstraint(Sketcher.Constraint("Distance", 1, Q("20 mm")))
sketch8.addConstraint(Sketcher.Constraint("DistanceY", 8, 2, -1, 1, Q("69 mm")))
sketch8.addConstraint(Sketcher.Constraint("Distance", 5, Q("22.16 mm")))
sketch8.addConstraint(Sketcher.Constraint("DistanceY", 11, 2, -1, 1, Q("88.527799 mm")))
sketch8.addConstraint(Sketcher.Constraint("DistanceX", 4, 2, 2, 2, Q("3.084701 mm")))
sketch8.addConstraint(Sketcher.Constraint("DistanceX", 8, 2, 4, 2, Q("14.507599 mm")))
sketch8.addConstraint(Sketcher.Constraint("DistanceY", 5, 2, 9, 2, Q("43.289501 mm")))
sketch8.addConstraint(Sketcher.Constraint("DistanceY", 2, 2, -1, 1, Q("162.405091 mm")))
sketch8.addConstraint(Sketcher.Constraint("DistanceX", 0, 2, -1, 1, Q("135.749394 mm")))
pocket7 = body.newObject("PartDesign::Pocket", "Pocket006")
pocket7.Profile = sketch8
pocket7.Type = "ThroughAll"
pocket7.Midplane = True

# Sketch on XZ plane
sketch9 = body.newObject("Sketcher::SketchObject", "Sketch008")
sketch9.AttachmentSupport = (doc.getObject("XZ_Plane"), [""])
sketch9.MapMode = "FlatFace"
add_polygon(sketch9, [(135.749394, -181.284843), (138.678564, -181.93289), (142.998874, -162.405091), (140.069704, -161.757044)])  # lines 0-3
add_polygon(sketch9, [(145.470091, -137.347296), (148.399261, -137.995342), (152.71957, -118.467543), (149.7904, -117.819497)])  # lines 4-7
sketch9.addConstraint(Sketcher.Constraint("Perpendicular", 0, 1))
sketch9.addConstraint(Sketcher.Constraint("Perpendicular", 1, 2))
sketch9.addConstraint(Sketcher.Constraint("Perpendicular", 2, 3))
sketch9.addConstraint(Sketcher.Constraint("Perpendicular", 3, 4))
sketch9.addConstraint(Sketcher.Constraint("Perpendicular", 4, 5))
sketch9.addConstraint(Sketcher.Constraint("Perpendicular", 5, 6))
sketch9.addConstraint(Sketcher.Constraint("Perpendicular", 6, 7))
sketch9.addConstraint(Sketcher.Constraint("Equal", 2, 4))
sketch9.addConstraint(Sketcher.Constraint("Equal", 3, 5))
sketch9.addConstraint(Sketcher.Constraint("Distance", 0, Q("3 mm")))
sketch9.addConstraint(Sketcher.Constraint("Distance", 1, Q("20 mm")))
sketch9.addConstraint(Sketcher.Constraint("DistanceX", -1, 1, 6, 2, Q("149.7904 mm")))
sketch9.addConstraint(Sketcher.Constraint("DistanceY", 0, 2, 1, 2, Q("19.527799 mm")))
sketch9.addConstraint(Sketcher.Constraint("DistanceY", 3, 2, 4, 2, Q("43.289501 mm")))
sketch9.addConstraint(Sketcher.Constraint("DistanceY", 0, 2, -1, 1, Q("181.93289 mm")))
sketch9.addConstraint(Sketcher.Constraint("DistanceX", -1, 1, 0, 2, Q("138.678564 mm")))
pocket8 = body.newObject("PartDesign::Pocket", "Pocket007")
pocket8.Profile = sketch9
pocket8.Type = "ThroughAll"
pocket8.Midplane = True

# Sketch on XZ plane
sketch10 = body.newObject("Sketcher::SketchObject", "Sketch009")
sketch10.AttachmentSupport = (doc.getObject("XZ_Plane"), [""])
sketch10.MapMode = "FlatFace"
add_polygon(sketch10, [(95, 100), (95, 97), (130, 97), (130, 100)])  # lines 0-3
add_polygon(sketch10, [(20, 100), (20, 97), (60, 97), (60, 100)])  # lines 4-7
add_polygon(sketch10, [(-50, 100), (-50, 97), (-15, 97), (-15, 100)])  # lines 8-11
sketch10.addConstraint(Sketcher.Constraint("Vertical", 0))
sketch10.addConstraint(Sketcher.Constraint("Horizontal", 1))
sketch10.addConstraint(Sketcher.Constraint("Vertical", 2))
sketch10.addConstraint(Sketcher.Constraint("Horizontal", 3))
sketch10.addConstraint(Sketcher.Constraint("Vertical", 4))
sketch10.addConstraint(Sketcher.Constraint("Horizontal", 5))
sketch10.addConstraint(Sketcher.Constraint("Vertical", 6))
sketch10.addConstraint(Sketcher.Constraint("Horizontal", 7))
sketch10.addConstraint(Sketcher.Constraint("Vertical", 8))
sketch10.addConstraint(Sketcher.Constraint("Horizontal", 9))
sketch10.addConstraint(Sketcher.Constraint("Vertical", 10))
sketch10.addConstraint(Sketcher.Constraint("Horizontal", 11))
sketch10.addConstraint(Sketcher.Constraint("Horizontal", 1, 2, 4, 2))
sketch10.addConstraint(Sketcher.Constraint("Horizontal", 3, 2, 6, 2))
sketch10.addConstraint(Sketcher.Constraint("Horizontal", 5, 2, 8, 2))
sketch10.addConstraint(Sketcher.Constraint("Horizontal", 7, 2, 10, 2))
sketch10.addConstraint(Sketcher.Constraint("Equal", 3, 9))
sketch10.addConstraint(Sketcher.Constraint("DistanceX", 1, 1, 1, 2, Q("35 mm")))
sketch10.addConstraint(Sketcher.Constraint("DistanceX", 5, 1, 5, 2, Q("40 mm")))
sketch10.addConstraint(Sketcher.Constraint("DistanceY", 0, 2, 0, 1, Q("3 mm")))
sketch10.addConstraint(Sketcher.Constraint("DistanceX", -1, 1, 0, 2, Q("95 mm")))
sketch10.addConstraint(Sketcher.Constraint("DistanceY", -1, 1, 0, 2, Q("97 mm")))
sketch10.addConstraint(Sketcher.Constraint("DistanceX", -1, 1, 4, 2, Q("20 mm")))
sketch10.addConstraint(Sketcher.Constraint("DistanceX", 8, 2, -1, 1, Q("50 mm")))
pocket9 = body.newObject("PartDesign::Pocket", "Pocket008")
pocket9.Profile = sketch10
pocket9.Type = "ThroughAll"
pocket9.Midplane = True

# Sketch on XZ plane
sketch11 = body.newObject("Sketcher::SketchObject", "Sketch010")
sketch11.AttachmentSupport = (doc.getObject("XZ_Plane"), [""])
sketch11.MapMode = "FlatFace"
sketch11.addGeometry(Part.Circle(Vector(67, -166.5, 0), Vector(0, 0, 1), 1.5), False)
sketch11.addGeometry(Part.Circle(Vector(-14.5, -166.5, 0), Vector(0, 0, 1), 1.5), False)
sketch11.addGeometry(Part.Circle(Vector(-50, -166.5, 0), Vector(0, 0, 1), 1.5), False)
sketch11.addGeometry(Part.Circle(Vector(67, -87, 0), Vector(0, 0, 1), 1.5), False)
sketch11.addGeometry(Part.Circle(Vector(-14.5, -87, 0), Vector(0, 0, 1), 1.5), False)
sketch11.addGeometry(Part.Circle(Vector(-50, -120.9, 0), Vector(0, 0, 1), 1.5), False)
sketch11.addConstraint(Sketcher.Constraint("Equal", 0, 1))
sketch11.addConstraint(Sketcher.Constraint("Equal", 1, 2))
sketch11.addConstraint(Sketcher.Constraint("Equal", 2, 3))
sketch11.addConstraint(Sketcher.Constraint("Equal", 3, 4))
sketch11.addConstraint(Sketcher.Constraint("Equal", 4, 5))
sketch11.addConstraint(Sketcher.Constraint("Horizontal", 0, 3, 1, 3))
sketch11.addConstraint(Sketcher.Constraint("Horizontal", 1, 3, 2, 3))
sketch11.addConstraint(Sketcher.Constraint("Horizontal", 3, 3, 4, 3))
sketch11.addConstraint(Sketcher.Constraint("Vertical", 0, 3, 3, 3))
sketch11.addConstraint(Sketcher.Constraint("Vertical", 1, 3, 4, 3))
sketch11.addConstraint(Sketcher.Constraint("Vertical", 2, 3, 5, 3))
sketch11.addConstraint(Sketcher.Constraint("Diameter", 0, Q("3 mm")))
sketch11.addConstraint(Sketcher.Constraint("DistanceX", -1, 1, 0, 3, Q("67 mm")))
sketch11.addConstraint(Sketcher.Constraint("DistanceX", 2, 3, -1, 1, Q("50 mm")))
sketch11.addConstraint(Sketcher.Constraint("DistanceY", 3, 3, -1, 1, Q("87 mm")))
sketch11.addConstraint(Sketcher.Constraint("DistanceY", 0, 3, -1, 1, Q("166.5 mm")))
sketch11.addConstraint(Sketcher.Constraint("DistanceX", 1, 3, -1, 1, Q("14.5 mm")))
sketch11.addConstraint(Sketcher.Constraint("DistanceY", 5, 3, -1, 1, Q("120.9 mm")))
pocket10 = body.newObject("PartDesign::Pocket", "Pocket009")
pocket10.Profile = sketch11
pocket10.Type = "ThroughAll"
pocket10.Midplane = True

# Sketch on XZ plane
sketch12 = body.newObject("Sketcher::SketchObject", "Sketch011")
sketch12.AttachmentSupport = (doc.getObject("XZ_Plane"), [""])
sketch12.MapMode = "FlatFace"
sketch12.addGeometry(Part.Circle(Vector(126, -53.5, 0), Vector(0, 0, 1), 1.5), False)
sketch12.addGeometry(Part.Circle(Vector(127.5, 86.491964, 0), Vector(0, 0, 1), 1.5), False)
sketch12.addGeometry(Part.Circle(Vector(-67.5, -53.5, 0), Vector(0, 0, 1), 1.5), False)
sketch12.addGeometry(Part.Circle(Vector(-67.5, 86.5, 0), Vector(0, 0, 1), 1.5), False)
sketch12.addGeometry(Part.Circle(Vector(24, 15, 0), Vector(0, 0, 1), 1.5), False)
sketch12.addConstraint(Sketcher.Constraint("Equal", 0, 1))
sketch12.addConstraint(Sketcher.Constraint("Equal", 1, 2))
sketch12.addConstraint(Sketcher.Constraint("Equal", 2, 3))
sketch12.addConstraint(Sketcher.Constraint("Equal", 3, 4))
sketch12.addConstraint(Sketcher.Constraint("Horizontal", 0, 3, 2, 3))
sketch12.addConstraint(Sketcher.Constraint("Vertical", 2, 3, 3, 3))
sketch12.addConstraint(Sketcher.Constraint("Diameter", 0, Q("3 mm")))
sketch12.addConstraint(Sketcher.Constraint("DistanceX", -1, 1, 0, 3, Q("126 mm")))
sketch12.addConstraint(Sketcher.Constraint("DistanceX", -1, 1, 4, 3, Q("24 mm")))
sketch12.addConstraint(Sketcher.Constraint("DistanceY", -1, 1, 4, 3, Q("15 mm")))
sketch12.addConstraint(Sketcher.Constraint("DistanceX", 2, 3, 1, 3, Q("195 mm")))
sketch12.addConstraint(Sketcher.Constraint("DistanceY", 2, 3, 3, 3, Q("140 mm")))
sketch12.addConstraint(Sketcher.Constraint("DistanceY", 0, 3, -1, 1, Q("53.5 mm")))
sketch12.addConstraint(Sketcher.Constraint("DistanceX", -1, 1, 1, 3, Q("127.5 mm")))
sketch12.addConstraint(Sketcher.Constraint("DistanceY", -1, 1, 1, 3, Q("86.491964 mm")))
pocket11 = body.newObject("PartDesign::Pocket", "Pocket010")
pocket11.Profile = sketch12
pocket11.Type = "ThroughAll"
pocket11.Midplane = True

doc.recompute()
